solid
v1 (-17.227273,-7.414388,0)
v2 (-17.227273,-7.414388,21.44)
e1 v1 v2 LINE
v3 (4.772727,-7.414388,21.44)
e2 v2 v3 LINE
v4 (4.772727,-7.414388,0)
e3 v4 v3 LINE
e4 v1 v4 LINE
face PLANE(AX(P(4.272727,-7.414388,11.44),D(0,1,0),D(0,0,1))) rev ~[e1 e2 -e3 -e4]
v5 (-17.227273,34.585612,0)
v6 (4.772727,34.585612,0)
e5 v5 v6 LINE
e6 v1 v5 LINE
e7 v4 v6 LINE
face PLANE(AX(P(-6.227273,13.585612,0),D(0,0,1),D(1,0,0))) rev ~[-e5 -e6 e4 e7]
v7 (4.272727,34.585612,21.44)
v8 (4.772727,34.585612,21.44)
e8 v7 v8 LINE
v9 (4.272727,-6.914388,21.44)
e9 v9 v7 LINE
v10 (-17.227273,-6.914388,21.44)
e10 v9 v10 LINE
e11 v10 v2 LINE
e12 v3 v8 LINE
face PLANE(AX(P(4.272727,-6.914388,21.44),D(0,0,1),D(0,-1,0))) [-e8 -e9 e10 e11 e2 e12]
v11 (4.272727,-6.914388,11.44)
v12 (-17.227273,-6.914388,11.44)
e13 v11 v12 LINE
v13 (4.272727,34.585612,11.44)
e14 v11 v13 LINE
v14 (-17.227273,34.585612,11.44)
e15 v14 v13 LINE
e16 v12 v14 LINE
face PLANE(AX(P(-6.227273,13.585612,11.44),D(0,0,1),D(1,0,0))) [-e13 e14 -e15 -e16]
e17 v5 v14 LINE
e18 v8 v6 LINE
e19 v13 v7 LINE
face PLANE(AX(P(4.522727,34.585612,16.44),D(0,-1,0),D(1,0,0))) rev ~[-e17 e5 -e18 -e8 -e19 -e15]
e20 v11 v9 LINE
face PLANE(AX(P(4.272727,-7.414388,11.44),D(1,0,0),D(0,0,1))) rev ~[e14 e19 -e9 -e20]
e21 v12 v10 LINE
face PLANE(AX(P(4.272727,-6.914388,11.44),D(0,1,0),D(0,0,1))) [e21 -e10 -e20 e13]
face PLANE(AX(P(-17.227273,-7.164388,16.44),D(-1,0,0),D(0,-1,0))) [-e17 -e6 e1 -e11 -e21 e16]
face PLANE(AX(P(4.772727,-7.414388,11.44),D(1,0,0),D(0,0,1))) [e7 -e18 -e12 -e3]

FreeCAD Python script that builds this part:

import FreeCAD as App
import Part
import Sketcher

doc = App.newDocument("Part")
body = doc.addObject("PartDesign::Body", "Body")

sketch1 = body.newObject("Sketcher::SketchObject", "Sketch")
sketch1.AttachmentSupport = (doc.getObject("XY_Plane"), [""])
sketch1.MapMode = "FlatFace"
sketch1.addGeometry([
    Part.LineSegment(App.Vector(-17, 35, 0), App.Vector(-17, -7, 0)),
    Part.LineSegment(App.Vector(-17, -7, 0), App.Vector(5, -7, 0)),
    Part.LineSegment(App.Vector(5, -7, 0), App.Vector(5, 35, 0)),
    Part.LineSegment(App.Vector(5, 35, 0), App.Vector(-17, 35, 0)),
], False)
sketch1.addConstraint([
    Sketcher.Constraint("Coincident", 0, 2, 1, 1),
    Sketcher.Constraint("Coincident", 1, 2, 2, 1),
    Sketcher.Constraint("Coincident", 2, 2, 3, 1),
    Sketcher.Constraint("Coincident", 3, 2, 0, 1),
    Sketcher.Constraint("Vertical", 0),
    Sketcher.Constraint("Horizontal", 1),
    Sketcher.Constraint("Vertical", 2),
    Sketcher.Constraint("Horizontal", 3),
    Sketcher.Constraint("DistanceX", 1, 1, 1, 2, 22.0),
    Sketcher.Constraint("DistanceY", 0, 2, 0, 1, 42.0),
    Sketcher.Constraint("DistanceY", -1, 1, 2, 2, 34.585612),
    Sketcher.Constraint("DistanceX", 0, 2, -1, 1, 17.227273),
])
pad1 = body.newObject("PartDesign::Pad", "Pad")
pad1.Profile = sketch1
pad1.Length = 11.44

sketch2 = body.newObject("Sketcher::SketchObject", "Sketch001")
sketch2.AttachmentSupport = (doc.getObject("XZ_Plane"), [""])
sketch2.MapMode = "FlatFace"
sketch2.AttachmentOffset = App.Placement(App.Vector(0, 0, 7.414388), App.Rotation())
sketch2.addGeometry([
    Part.LineSegment(App.Vector(4.3, 21.4, 0), App.Vector(4.3, 11.4, 0)),
    Part.LineSegment(App.Vector(4.3, 11.4, 0), App.Vector(4.8, 11.4, 0)),
    Part.LineSegment(App.Vector(4.8, 11.4, 0), App.Vector(4.8, 21.4, 0)),
    Part.LineSegment(App.Vector(4.8, 21.4, 0), App.Vector(4.3, 21.4, 0)),
], False)
sketch2.addConstraint([
    Sketcher.Constraint("Coincident", 0, 2, 1, 1),
    Sketcher.Constraint("Coincident", 1, 2, 2, 1),
    Sketcher.Constraint("Coincident", 2, 2, 3, 1),
    Sketcher.Constraint("Coincident", 3, 2, 0, 1),
    Sketcher.Constraint("Vertical", 0),
    Sketcher.Constraint("Horizontal", 1),
    Sketcher.Constraint("Vertical", 2),
    Sketcher.Constraint("Horizontal", 3),
    Sketcher.Constraint("DistanceY", 0, 2, 0, 1, 10.0),
    Sketcher.Constraint("DistanceX", 1, 1, 1, 2, 0.5),
    Sketcher.Constraint("DistanceY", -1, 1, 0, 2, 11.44),
    Sketcher.Constraint("DistanceX", -1, 1, 0, 2, 4.272727),
])
pad2 = body.newObject("PartDesign::Pad", "Pad001")
pad2.Profile = sketch2
pad2.Length = 42
pad2.Reversed = True

sketch3 = body.newObject("Sketcher::SketchObject", "Sketch002")
sketch3.AttachmentSupport = (doc.getObject("YZ_Plane"), [""])
sketch3.MapMode = "FlatFace"
sketch3.AttachmentOffset = App.Placement(App.Vector(0, 0, 4.272727), App.Rotation())
sketch3.addGeometry([
    Part.LineSegment(App.Vector(-6.9, 21.4, 0), App.Vector(-6.9, 11.4, 0)),
    Part.LineSegment(App.Vector(-6.9, 11.4, 0), App.Vector(-7.4, 11.4, 0)),
    Part.LineSegment(App.Vector(-7.4, 11.4, 0), App.Vector(-7.4, 21.4, 0)),
    Part.LineSegment(App.Vector(-7.4, 21.4, 0), App.Vector(-6.9, 21.4, 0)),
], False)
sketch3.addConstraint([
    Sketcher.Constraint("Coincident", 0, 2, 1, 1),
    Sketcher.Constraint("Coincident", 1, 2, 2, 1),
    Sketcher.Constraint("Coincident", 2, 2, 3, 1),
    Sketcher.Constraint("Coincident", 3, 2, 0, 1),
    Sketcher.Constraint("Vertical", 0),
    Sketcher.Constraint("Horizontal", 1),
    Sketcher.Constraint("Vertical", 2),
    Sketcher.Constraint("Horizontal", 3),
    Sketcher.Constraint("DistanceY", 0, 2, 0, 1, 10.0),
    Sketcher.Constraint("DistanceX", 1, 2, 1, 1, 0.5),
    Sketcher.Constraint("DistanceY", -1, 1, 0, 2, 11.44),
    Sketcher.Constraint("DistanceX", 0, 2, -1, 1, 6.914388),
])
pad3 = body.newObject("PartDesign::Pad", "Pad002")
pad3.Profile = sketch3
pad3.Length = 21.5
pad3.Reversed = True

doc.recompute()
